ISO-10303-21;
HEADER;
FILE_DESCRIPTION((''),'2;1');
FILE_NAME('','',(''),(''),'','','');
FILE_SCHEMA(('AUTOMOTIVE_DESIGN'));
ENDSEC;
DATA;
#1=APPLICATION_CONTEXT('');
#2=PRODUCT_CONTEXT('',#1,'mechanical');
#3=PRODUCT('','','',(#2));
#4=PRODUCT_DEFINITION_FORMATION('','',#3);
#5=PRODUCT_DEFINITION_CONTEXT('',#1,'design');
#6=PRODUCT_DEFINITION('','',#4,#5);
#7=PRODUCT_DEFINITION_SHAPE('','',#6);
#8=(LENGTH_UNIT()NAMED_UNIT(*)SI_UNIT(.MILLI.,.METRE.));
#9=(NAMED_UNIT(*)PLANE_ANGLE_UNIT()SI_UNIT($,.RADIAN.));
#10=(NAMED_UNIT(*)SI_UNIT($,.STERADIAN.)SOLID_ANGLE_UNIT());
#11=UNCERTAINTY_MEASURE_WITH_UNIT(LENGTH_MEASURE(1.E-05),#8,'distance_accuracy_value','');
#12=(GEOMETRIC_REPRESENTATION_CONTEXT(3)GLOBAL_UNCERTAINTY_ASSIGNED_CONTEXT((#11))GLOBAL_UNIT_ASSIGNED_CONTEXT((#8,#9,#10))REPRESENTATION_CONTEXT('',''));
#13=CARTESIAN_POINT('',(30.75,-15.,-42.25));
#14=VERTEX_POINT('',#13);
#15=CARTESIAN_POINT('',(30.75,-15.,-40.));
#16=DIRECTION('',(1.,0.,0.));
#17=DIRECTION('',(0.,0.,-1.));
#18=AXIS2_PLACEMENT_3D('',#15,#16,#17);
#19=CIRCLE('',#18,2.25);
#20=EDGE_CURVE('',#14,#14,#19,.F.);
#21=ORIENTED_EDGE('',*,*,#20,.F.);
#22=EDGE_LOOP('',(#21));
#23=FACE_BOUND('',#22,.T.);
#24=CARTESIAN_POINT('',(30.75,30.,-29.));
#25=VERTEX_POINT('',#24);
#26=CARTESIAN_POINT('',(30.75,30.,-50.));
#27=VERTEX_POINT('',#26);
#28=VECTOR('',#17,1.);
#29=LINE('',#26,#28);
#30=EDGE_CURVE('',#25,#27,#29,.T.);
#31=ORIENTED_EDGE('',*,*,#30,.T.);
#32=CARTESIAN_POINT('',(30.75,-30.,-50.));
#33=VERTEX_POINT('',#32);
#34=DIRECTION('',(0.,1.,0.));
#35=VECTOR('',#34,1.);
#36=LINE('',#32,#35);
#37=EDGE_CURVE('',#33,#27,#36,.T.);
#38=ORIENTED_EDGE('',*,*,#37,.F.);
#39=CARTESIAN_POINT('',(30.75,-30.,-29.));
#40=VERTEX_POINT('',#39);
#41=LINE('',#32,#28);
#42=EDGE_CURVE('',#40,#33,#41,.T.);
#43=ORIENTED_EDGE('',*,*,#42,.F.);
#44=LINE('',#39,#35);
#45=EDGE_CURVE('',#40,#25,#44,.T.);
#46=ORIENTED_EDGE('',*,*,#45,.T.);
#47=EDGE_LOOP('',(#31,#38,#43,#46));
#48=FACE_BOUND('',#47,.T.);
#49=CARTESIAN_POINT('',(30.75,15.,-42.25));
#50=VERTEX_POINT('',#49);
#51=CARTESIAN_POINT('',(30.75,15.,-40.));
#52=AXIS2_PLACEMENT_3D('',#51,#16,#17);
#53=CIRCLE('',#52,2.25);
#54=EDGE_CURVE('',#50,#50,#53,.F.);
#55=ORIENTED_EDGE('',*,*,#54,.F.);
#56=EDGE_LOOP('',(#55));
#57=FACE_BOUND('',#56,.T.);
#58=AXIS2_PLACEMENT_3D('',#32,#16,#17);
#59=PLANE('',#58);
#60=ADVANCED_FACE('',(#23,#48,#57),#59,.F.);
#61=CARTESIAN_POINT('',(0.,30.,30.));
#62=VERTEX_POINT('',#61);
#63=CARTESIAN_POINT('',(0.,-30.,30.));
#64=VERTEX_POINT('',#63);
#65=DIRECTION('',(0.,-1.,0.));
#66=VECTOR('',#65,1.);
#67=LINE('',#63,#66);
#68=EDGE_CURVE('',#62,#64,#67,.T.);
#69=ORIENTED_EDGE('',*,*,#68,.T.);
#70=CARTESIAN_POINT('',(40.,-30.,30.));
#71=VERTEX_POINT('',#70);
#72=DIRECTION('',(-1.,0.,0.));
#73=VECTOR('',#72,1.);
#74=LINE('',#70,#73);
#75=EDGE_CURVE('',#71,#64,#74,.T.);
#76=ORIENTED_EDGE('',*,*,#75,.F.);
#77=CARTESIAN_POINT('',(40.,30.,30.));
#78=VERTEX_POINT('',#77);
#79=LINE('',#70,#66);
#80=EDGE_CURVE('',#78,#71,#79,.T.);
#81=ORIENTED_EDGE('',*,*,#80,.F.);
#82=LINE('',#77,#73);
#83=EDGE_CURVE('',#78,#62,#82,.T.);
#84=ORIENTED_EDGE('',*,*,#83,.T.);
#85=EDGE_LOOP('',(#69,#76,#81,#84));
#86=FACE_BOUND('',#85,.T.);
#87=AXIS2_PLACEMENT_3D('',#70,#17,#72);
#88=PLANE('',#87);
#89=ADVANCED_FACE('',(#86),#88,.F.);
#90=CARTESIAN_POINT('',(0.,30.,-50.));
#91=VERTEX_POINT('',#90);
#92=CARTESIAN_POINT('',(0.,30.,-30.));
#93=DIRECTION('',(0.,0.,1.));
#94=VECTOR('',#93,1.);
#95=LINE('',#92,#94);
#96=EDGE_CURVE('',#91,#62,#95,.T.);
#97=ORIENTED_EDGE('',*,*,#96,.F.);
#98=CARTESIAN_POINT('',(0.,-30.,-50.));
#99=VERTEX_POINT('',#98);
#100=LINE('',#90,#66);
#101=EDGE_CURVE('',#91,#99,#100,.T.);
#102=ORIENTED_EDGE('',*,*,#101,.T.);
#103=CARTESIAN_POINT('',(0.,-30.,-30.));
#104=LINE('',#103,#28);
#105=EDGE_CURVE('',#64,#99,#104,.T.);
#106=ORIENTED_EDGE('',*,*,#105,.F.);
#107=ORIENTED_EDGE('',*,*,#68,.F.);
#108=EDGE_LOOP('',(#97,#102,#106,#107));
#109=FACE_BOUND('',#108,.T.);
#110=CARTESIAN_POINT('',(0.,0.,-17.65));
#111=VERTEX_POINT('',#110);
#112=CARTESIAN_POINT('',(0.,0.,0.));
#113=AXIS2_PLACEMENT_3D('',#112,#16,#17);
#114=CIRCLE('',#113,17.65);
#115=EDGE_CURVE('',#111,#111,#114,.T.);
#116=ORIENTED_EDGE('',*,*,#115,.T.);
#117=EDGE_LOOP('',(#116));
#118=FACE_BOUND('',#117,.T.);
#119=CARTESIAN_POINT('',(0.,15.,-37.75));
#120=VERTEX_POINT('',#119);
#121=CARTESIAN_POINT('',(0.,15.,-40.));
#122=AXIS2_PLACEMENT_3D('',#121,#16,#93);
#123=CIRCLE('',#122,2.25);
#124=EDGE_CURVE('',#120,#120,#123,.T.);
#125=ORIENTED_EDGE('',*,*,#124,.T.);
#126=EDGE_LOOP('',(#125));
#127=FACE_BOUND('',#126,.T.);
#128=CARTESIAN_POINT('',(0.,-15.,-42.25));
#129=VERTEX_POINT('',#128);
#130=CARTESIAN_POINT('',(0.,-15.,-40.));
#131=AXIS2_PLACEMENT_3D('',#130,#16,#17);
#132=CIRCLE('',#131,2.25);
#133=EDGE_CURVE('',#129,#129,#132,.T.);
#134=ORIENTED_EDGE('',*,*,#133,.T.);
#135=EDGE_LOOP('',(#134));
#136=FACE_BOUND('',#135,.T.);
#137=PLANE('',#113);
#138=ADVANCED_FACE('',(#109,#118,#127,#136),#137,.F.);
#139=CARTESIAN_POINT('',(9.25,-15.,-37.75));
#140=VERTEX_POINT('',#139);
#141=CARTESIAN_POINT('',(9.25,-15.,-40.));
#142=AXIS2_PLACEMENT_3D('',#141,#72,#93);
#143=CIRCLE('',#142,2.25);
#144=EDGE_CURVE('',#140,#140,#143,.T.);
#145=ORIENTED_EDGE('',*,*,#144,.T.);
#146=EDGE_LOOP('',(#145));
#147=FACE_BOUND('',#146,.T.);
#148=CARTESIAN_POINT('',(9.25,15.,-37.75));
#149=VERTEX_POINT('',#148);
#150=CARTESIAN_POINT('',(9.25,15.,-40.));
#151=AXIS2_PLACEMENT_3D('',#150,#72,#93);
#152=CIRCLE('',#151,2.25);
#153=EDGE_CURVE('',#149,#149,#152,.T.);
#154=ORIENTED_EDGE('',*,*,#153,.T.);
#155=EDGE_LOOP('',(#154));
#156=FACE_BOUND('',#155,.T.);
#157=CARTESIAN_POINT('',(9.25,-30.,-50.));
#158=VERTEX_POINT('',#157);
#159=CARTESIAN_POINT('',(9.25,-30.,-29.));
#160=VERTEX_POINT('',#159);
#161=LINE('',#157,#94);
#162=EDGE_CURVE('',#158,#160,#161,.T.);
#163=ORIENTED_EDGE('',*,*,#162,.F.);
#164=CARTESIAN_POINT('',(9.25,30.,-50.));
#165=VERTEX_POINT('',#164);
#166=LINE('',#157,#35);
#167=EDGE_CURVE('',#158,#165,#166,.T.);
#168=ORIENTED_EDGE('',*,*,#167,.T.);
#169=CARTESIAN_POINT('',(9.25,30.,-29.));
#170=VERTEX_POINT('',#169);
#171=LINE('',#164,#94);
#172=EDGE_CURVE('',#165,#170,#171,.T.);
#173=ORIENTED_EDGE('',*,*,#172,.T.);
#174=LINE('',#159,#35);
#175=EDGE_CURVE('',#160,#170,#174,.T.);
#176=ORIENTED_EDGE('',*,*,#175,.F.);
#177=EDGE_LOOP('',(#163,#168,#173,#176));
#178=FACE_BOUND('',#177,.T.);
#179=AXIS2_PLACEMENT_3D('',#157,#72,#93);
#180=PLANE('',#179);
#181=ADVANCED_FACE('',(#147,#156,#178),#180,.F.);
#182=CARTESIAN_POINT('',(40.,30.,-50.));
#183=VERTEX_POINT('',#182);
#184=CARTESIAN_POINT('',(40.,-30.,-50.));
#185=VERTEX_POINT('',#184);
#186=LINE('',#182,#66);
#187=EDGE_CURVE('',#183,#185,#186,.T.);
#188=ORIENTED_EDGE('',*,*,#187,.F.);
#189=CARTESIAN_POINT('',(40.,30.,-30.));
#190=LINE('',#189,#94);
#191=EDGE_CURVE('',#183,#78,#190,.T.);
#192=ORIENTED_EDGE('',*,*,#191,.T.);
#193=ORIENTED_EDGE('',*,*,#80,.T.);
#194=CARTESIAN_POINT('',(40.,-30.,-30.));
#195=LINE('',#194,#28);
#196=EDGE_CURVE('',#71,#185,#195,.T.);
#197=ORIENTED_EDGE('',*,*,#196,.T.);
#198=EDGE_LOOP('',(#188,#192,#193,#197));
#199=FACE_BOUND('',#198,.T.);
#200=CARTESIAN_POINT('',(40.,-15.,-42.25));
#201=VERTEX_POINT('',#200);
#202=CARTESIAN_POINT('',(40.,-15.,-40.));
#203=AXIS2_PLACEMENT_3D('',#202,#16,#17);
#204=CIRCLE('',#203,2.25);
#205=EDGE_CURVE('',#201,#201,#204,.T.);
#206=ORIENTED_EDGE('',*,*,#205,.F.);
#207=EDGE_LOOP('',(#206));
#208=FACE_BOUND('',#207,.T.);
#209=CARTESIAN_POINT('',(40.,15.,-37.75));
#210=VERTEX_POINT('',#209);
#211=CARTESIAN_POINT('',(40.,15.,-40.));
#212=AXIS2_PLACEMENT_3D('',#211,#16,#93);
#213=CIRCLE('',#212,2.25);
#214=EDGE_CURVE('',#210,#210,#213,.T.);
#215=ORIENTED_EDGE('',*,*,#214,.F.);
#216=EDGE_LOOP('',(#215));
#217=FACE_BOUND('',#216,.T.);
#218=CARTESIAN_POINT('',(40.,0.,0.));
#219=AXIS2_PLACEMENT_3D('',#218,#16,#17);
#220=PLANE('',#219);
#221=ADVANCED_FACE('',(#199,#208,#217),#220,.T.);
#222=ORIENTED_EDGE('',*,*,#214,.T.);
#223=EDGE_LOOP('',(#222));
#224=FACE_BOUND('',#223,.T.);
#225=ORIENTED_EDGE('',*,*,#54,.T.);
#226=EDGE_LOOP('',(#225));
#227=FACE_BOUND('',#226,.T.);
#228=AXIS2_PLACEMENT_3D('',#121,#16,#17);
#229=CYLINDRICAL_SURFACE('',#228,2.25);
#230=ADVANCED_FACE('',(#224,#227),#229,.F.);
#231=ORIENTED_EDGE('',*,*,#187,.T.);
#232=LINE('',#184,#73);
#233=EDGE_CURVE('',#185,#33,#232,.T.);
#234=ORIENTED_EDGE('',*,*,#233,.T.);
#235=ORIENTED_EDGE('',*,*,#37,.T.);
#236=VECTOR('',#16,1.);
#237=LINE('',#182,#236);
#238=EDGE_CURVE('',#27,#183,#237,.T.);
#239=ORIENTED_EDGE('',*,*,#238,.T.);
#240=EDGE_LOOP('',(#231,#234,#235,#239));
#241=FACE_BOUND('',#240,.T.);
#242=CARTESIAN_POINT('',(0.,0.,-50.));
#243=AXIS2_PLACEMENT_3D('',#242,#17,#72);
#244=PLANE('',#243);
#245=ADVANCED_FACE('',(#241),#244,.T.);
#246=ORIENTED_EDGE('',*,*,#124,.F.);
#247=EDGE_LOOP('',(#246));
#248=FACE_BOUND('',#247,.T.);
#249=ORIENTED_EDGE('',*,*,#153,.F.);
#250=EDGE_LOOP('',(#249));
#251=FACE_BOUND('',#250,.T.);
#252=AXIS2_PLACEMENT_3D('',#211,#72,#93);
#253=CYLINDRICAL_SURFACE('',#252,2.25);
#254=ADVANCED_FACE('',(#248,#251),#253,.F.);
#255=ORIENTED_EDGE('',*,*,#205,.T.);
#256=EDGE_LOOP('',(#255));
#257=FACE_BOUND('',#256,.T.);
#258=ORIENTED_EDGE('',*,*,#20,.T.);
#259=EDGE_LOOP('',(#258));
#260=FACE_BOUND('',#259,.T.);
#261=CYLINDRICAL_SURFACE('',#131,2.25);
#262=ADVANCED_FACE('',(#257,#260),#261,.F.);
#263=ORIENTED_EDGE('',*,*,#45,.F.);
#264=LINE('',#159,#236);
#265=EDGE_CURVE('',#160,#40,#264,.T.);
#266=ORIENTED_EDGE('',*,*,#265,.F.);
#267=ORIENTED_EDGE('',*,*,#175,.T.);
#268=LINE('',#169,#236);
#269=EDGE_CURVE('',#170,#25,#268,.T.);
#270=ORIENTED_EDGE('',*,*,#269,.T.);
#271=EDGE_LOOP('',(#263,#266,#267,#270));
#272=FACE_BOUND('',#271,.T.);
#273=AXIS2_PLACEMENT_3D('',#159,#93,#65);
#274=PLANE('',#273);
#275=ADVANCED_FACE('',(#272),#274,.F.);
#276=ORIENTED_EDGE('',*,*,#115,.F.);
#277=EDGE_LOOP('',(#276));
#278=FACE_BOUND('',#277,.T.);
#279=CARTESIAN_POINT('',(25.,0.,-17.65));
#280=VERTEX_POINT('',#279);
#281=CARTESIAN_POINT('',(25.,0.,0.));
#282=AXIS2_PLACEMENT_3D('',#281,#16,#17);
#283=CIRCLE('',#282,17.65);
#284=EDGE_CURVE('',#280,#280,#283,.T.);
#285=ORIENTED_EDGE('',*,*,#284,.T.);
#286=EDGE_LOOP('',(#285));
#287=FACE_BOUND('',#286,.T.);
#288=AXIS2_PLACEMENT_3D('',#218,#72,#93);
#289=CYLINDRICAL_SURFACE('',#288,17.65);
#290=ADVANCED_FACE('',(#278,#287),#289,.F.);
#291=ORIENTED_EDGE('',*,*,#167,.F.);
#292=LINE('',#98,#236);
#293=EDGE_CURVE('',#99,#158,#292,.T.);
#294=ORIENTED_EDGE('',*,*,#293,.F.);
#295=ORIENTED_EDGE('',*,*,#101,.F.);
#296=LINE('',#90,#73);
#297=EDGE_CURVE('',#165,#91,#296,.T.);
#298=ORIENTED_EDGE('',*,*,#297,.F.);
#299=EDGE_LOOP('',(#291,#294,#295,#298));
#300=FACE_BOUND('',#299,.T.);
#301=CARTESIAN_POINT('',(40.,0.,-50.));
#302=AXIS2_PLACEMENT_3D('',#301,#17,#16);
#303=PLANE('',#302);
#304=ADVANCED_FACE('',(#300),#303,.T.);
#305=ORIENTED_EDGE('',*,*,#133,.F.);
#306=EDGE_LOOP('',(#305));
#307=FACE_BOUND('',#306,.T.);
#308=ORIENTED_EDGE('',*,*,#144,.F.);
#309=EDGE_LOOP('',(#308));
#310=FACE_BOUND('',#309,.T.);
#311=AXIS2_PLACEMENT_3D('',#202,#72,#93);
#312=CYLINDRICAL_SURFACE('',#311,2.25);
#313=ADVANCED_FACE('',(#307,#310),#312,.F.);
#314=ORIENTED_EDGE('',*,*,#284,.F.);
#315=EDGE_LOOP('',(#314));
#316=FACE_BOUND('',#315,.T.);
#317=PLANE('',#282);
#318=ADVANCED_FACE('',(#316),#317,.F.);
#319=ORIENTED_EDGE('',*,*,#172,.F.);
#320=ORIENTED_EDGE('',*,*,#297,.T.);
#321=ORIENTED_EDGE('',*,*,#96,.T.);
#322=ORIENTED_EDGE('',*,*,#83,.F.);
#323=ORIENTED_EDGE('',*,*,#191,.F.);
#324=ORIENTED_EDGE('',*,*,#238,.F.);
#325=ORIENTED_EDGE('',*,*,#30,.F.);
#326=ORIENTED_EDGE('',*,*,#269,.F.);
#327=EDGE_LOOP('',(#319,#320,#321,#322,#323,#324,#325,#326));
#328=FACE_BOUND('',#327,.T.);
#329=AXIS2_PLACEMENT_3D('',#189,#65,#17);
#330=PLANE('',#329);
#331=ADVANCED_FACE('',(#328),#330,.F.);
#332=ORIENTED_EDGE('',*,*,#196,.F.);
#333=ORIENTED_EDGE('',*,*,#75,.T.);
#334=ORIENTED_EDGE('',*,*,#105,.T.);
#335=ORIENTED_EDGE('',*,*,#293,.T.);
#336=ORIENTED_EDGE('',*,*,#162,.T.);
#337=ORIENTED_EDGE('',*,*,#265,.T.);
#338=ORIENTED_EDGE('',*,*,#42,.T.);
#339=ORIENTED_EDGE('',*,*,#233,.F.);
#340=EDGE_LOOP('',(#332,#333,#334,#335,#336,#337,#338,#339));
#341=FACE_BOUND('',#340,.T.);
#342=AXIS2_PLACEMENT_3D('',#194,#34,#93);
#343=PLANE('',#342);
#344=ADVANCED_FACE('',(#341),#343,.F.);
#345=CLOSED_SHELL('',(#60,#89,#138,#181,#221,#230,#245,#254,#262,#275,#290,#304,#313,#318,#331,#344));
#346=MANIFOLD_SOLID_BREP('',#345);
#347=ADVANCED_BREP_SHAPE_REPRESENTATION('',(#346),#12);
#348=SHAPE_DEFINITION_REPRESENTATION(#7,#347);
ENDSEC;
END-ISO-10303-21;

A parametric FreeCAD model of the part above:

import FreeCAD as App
import Part
import Sketcher
from FreeCAD import Vector


def add_polygon(sketch, points):
    """Adds a closed chain of lines whose ends are joined by coincident constraints."""
    first, n = sketch.GeometryCount, len(points)
    for a, b in zip(points, points[1:] + points[:1]):
        sketch.addGeometry(Part.LineSegment(App.Vector(*a, 0), App.Vector(*b, 0)), False)
    for i in range(n):
        sketch.addConstraint(Sketcher.Constraint("Coincident", first + i, 2, first + (i + 1) % n, 1))

doc = App.newDocument("Part")
body = doc.addObject("PartDesign::Body", "Body")

# Sketch on YZ plane
sketch1 = body.newObject("Sketcher::SketchObject", "Sketch")
sketch1.AttachmentSupport = (doc.getObject("YZ_Plane"), [""])
sketch1.MapMode = "FlatFace"
add_polygon(sketch1, [(30, 30), (-30, 30), (-30, -30), (30, -30)])  # lines 0-3
sketch1.addGeometry(Part.Circle(Vector(0, 0, 0), Vector(0, 0, 1), 18), False)  # 4
sketch1.addConstraint([
    Sketcher.Constraint("Horizontal", 0),
    Sketcher.Constraint("Vertical", 1),
    Sketcher.Constraint("Horizontal", 2),
    Sketcher.Constraint("Vertical", 3),
    Sketcher.Constraint("Coincident", 4, 3, -1, 1),
    Sketcher.Constraint("Symmetric", 0, 2, 2, 2, -1, 1),
    Sketcher.Constraint("Equal", 2, 1),
    Sketcher.Constraint("Diameter", 4, 35.3),
    Sketcher.Constraint("DistanceX", 0, 2, 0, 1, 60.0),
])
pad1 = body.newObject("PartDesign::Pad", "Pad")
pad1.Profile = sketch1
pad1.Length = 40

# Sketch on XY plane
sketch2 = body.newObject("Sketcher::SketchObject", "Sketch001")
sketch2.AttachmentSupport = (doc.getObject("XY_Plane"), [""])
sketch2.MapMode = "FlatFace"
sketch2.AttachmentOffset = App.Placement(Vector(0, 0, -30), App.Rotation())
add_polygon(sketch2, [(40, 30), (40, -30), (30, -30), (30, 30)])  # lines 0-3
sketch2.addConstraint([
    Sketcher.Constraint("Vertical", 0),
    Sketcher.Constraint("Horizontal", 1),
    Sketcher.Constraint("Vertical", 2),
    Sketcher.Constraint("Horizontal", 3),
    Sketcher.Constraint("DistanceX", 1, 2, 1, 1, 10.0),
    Sketcher.Constraint("DistanceY", 0, 2, 0, 1, 60.0),
    Sketcher.Constraint("DistanceX", -1, 1, 0, 2, 40.0),
    Sketcher.Constraint("DistanceY", 0, 2, -1, 1, 30.0),
])
pad2 = body.newObject("PartDesign::Pad", "Pad001")
pad2.Profile = sketch2
pad2.Length = 20
pad2.Reversed = True

# Sketch on YZ plane
sketch3 = body.newObject("Sketcher::SketchObject", "Sketch002")
sketch3.AttachmentSupport = (doc.getObject("YZ_Plane"), [""])
sketch3.MapMode = "FlatFace"
sketch3.AttachmentOffset = App.Placement(Vector(0, 0, 40), App.Rotation())
sketch3.addGeometry([
    Part.Circle(Vector(-15, -40, 0), Vector(0, 0, 1), 2.2),
    Part.Circle(Vector(15, -40, 0), Vector(0, 0, 1), 2.2),
], False)
sketch3.addConstraint([
    Sketcher.Constraint("Equal", 0, 1),
    Sketcher.Constraint("Symmetric", 0, 3, 1, 3, -2),
    Sketcher.Constraint("Diameter", 0, 4.5),
    Sketcher.Constraint("DistanceX", 0, 3, -1, 1, 15.0),
    Sketcher.Constraint("DistanceY", 0, 3, -1, 1, 40.0),
])
pocket1 = body.newObject("PartDesign::Pocket", "Pocket")
pocket1.Profile = sketch3
pocket1.Type = "ThroughAll"
doc.recompute()

datumplane = body.newObject("PartDesign::Plane", "DatumPlane")
datumplane.AttachmentSupport = (doc.getObject("YZ_Plane"), [""])
datumplane.MapMode = "FlatFace"
datumplane.AttachmentOffset = App.Placement(Vector(0, 0, 20), App.Rotation())
mirrored = body.newObject("PartDesign::Mirrored", "Mirrored")
mirrored.Originals = [pad2, pocket1]
mirrored.MirrorPlane = (datumplane, [""])
body.Tip = mirrored

# Sketch on YZ plane
sketch4 = body.newObject("Sketcher::SketchObject", "Sketch003")
sketch4.AttachmentSupport = (doc.getObject("YZ_Plane"), [""])
sketch4.MapMode = "FlatFace"
sketch4.AttachmentOffset = App.Placement(Vector(0, 0, 25), App.Rotation())
sketch4.addGeometry(Part.Circle(Vector(0, 0, 0), Vector(0, 0, 1), 18), False)
sketch4.addConstraint([
    Sketcher.Constraint("Coincident", 0, 3, -1, 1),
    Sketcher.Constraint("Diameter", 0, 35.3),
])
pad3 = body.newObject("PartDesign::Pad", "Pad002")
pad3.Profile = sketch4
pad3.Length = 15

# Sketch on XZ plane
sketch5 = body.newObject("Sketcher::SketchObject", "Sketch004")
sketch5.AttachmentSupport = (doc.getObject("XZ_Plane"), [""])
sketch5.MapMode = "FlatFace"
sketch5.AttachmentOffset = App.Placement(Vector(0, 0, -30), App.Rotation())
add_polygon(sketch5, [(9, -50), (9, -29), (31, -29), (31, -50)])  # lines 0-3
sketch5.addConstraint([
    Sketcher.Constraint("Vertical", 0),
    Sketcher.Constraint("Horizontal", 1),
    Sketcher.Constraint("Vertical", 2),
    Sketcher.Constraint("Horizontal", 3),
    Sketcher.Constraint("DistanceY", 0, 1, 0, 2, 21.0),
    Sketcher.Constraint("DistanceX", 1, 1, 1, 2, 21.5),
    Sketcher.Constraint("DistanceY", 0, 2, -1, 1, 29.0),
    Sketcher.Constraint("DistanceX", -1, 1, 0, 2, 9.25),
])
pocket2 = body.newObject("PartDesign::Pocket", "Pocket001")
pocket2.Profile = sketch5
pocket2.Type = "ThroughAll"
pocket2.Reversed = True

doc.recompute()
